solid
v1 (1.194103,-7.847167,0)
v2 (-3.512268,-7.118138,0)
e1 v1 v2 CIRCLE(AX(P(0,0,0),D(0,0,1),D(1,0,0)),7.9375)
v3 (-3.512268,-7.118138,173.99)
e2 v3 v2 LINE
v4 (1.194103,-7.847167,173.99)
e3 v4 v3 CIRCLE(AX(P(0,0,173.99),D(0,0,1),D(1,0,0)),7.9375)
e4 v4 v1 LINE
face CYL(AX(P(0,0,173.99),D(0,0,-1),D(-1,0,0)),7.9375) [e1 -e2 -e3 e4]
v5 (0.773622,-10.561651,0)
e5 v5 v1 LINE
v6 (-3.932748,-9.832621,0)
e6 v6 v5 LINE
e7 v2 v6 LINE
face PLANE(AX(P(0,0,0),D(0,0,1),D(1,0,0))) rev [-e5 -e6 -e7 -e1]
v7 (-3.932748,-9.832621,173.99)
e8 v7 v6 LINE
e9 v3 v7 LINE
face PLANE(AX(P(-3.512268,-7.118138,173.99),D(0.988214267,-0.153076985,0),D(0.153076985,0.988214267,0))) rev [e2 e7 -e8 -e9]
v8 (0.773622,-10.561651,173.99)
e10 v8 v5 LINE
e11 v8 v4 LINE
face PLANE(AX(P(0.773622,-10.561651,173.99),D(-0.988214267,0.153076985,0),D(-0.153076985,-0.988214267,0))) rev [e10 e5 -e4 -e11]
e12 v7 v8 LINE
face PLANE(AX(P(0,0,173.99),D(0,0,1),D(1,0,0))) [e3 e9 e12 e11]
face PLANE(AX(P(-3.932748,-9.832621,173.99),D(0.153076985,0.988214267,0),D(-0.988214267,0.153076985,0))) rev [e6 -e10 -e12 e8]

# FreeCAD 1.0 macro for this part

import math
import FreeCAD as App
import Part
import Sketcher

V = App.Vector
Q = App.Units.Quantity

doc = App.newDocument("Part")
params = doc.addObject("Spreadsheet::Sheet", "Params")
for row, (alias, value) in enumerate([
    ("sketch1_radius", "0.3125 in"),
    ("sketch1_length", "0.1875 in"),
    ("pad1_length", "6.85 in"),
], start=1):
    params.set(f"A{row}", alias)
    params.set(f"B{row}", "=" + value)
    params.setAlias(f"B{row}", alias)

body = doc.addObject("PartDesign::Body", "Body")

# Sketch on XY plane
sketch1 = body.newObject("Sketcher::SketchObject", "Sketch")
sketch1.AttachmentSupport = (doc.getObject("XY_Plane"), [""])
sketch1.MapMode = "FlatFace"
sketch1.addGeometry(Part.LineSegment(V(-3.5, -7.1, 0), V(-3.9, -9.8, 0)), False)
sketch1.addGeometry(Part.LineSegment(V(-3.9, -9.8, 0), V(0.8, -10.6, 0)), False)
sketch1.addGeometry(Part.LineSegment(V(0.8, -10.6, 0), V(1.2, -7.8, 0)), False)
sketch1.addGeometry(Part.ArcOfCircle(Part.Circle(V(0, 0, 0), V(0, 0, 1), 7.9), math.radians(-81), math.radians(244)), False)
sketch1.addConstraint(Sketcher.Constraint("Coincident", 0, 2, 1, 1))
sketch1.addConstraint(Sketcher.Constraint("Coincident", 1, 2, 2, 1))
sketch1.addConstraint(Sketcher.Constraint("Coincident", 2, 2, 3, 1))
sketch1.addConstraint(Sketcher.Constraint("Coincident", 3, 2, 0, 1))
sketch1.addConstraint(Sketcher.Constraint("Coincident", 3, 3, -1, 1))
sketch1.addConstraint(Sketcher.Constraint("Perpendicular", 0, 1))
sketch1.addConstraint(Sketcher.Constraint("Perpendicular", 1, 2))
sketch1.addConstraint(Sketcher.Constraint("Equal", 0, 2))
sketch1.addConstraint(Sketcher.Constraint("Radius", 3, Q("0.3125 in")))
sketch1.addConstraint(Sketcher.Constraint("Distance", 1, Q("0.1875 in")))
sketch1.addConstraint(Sketcher.Constraint("DistanceX", 0, 2, -1, 1, Q("3.932748 mm")))
sketch1.addConstraint(Sketcher.Constraint("DistanceY", 0, 2, -1, 1, Q("9.832621 mm")))
sketch1.setExpression("Constraints[8]", "Params.sketch1_radius")
sketch1.setExpression("Constraints[9]", "Params.sketch1_length")
pad1 = body.newObject("PartDesign::Pad", "Pad")
pad1.Profile = sketch1
pad1.setExpression("Length", "Params.pad1_length")

doc.recompute()
